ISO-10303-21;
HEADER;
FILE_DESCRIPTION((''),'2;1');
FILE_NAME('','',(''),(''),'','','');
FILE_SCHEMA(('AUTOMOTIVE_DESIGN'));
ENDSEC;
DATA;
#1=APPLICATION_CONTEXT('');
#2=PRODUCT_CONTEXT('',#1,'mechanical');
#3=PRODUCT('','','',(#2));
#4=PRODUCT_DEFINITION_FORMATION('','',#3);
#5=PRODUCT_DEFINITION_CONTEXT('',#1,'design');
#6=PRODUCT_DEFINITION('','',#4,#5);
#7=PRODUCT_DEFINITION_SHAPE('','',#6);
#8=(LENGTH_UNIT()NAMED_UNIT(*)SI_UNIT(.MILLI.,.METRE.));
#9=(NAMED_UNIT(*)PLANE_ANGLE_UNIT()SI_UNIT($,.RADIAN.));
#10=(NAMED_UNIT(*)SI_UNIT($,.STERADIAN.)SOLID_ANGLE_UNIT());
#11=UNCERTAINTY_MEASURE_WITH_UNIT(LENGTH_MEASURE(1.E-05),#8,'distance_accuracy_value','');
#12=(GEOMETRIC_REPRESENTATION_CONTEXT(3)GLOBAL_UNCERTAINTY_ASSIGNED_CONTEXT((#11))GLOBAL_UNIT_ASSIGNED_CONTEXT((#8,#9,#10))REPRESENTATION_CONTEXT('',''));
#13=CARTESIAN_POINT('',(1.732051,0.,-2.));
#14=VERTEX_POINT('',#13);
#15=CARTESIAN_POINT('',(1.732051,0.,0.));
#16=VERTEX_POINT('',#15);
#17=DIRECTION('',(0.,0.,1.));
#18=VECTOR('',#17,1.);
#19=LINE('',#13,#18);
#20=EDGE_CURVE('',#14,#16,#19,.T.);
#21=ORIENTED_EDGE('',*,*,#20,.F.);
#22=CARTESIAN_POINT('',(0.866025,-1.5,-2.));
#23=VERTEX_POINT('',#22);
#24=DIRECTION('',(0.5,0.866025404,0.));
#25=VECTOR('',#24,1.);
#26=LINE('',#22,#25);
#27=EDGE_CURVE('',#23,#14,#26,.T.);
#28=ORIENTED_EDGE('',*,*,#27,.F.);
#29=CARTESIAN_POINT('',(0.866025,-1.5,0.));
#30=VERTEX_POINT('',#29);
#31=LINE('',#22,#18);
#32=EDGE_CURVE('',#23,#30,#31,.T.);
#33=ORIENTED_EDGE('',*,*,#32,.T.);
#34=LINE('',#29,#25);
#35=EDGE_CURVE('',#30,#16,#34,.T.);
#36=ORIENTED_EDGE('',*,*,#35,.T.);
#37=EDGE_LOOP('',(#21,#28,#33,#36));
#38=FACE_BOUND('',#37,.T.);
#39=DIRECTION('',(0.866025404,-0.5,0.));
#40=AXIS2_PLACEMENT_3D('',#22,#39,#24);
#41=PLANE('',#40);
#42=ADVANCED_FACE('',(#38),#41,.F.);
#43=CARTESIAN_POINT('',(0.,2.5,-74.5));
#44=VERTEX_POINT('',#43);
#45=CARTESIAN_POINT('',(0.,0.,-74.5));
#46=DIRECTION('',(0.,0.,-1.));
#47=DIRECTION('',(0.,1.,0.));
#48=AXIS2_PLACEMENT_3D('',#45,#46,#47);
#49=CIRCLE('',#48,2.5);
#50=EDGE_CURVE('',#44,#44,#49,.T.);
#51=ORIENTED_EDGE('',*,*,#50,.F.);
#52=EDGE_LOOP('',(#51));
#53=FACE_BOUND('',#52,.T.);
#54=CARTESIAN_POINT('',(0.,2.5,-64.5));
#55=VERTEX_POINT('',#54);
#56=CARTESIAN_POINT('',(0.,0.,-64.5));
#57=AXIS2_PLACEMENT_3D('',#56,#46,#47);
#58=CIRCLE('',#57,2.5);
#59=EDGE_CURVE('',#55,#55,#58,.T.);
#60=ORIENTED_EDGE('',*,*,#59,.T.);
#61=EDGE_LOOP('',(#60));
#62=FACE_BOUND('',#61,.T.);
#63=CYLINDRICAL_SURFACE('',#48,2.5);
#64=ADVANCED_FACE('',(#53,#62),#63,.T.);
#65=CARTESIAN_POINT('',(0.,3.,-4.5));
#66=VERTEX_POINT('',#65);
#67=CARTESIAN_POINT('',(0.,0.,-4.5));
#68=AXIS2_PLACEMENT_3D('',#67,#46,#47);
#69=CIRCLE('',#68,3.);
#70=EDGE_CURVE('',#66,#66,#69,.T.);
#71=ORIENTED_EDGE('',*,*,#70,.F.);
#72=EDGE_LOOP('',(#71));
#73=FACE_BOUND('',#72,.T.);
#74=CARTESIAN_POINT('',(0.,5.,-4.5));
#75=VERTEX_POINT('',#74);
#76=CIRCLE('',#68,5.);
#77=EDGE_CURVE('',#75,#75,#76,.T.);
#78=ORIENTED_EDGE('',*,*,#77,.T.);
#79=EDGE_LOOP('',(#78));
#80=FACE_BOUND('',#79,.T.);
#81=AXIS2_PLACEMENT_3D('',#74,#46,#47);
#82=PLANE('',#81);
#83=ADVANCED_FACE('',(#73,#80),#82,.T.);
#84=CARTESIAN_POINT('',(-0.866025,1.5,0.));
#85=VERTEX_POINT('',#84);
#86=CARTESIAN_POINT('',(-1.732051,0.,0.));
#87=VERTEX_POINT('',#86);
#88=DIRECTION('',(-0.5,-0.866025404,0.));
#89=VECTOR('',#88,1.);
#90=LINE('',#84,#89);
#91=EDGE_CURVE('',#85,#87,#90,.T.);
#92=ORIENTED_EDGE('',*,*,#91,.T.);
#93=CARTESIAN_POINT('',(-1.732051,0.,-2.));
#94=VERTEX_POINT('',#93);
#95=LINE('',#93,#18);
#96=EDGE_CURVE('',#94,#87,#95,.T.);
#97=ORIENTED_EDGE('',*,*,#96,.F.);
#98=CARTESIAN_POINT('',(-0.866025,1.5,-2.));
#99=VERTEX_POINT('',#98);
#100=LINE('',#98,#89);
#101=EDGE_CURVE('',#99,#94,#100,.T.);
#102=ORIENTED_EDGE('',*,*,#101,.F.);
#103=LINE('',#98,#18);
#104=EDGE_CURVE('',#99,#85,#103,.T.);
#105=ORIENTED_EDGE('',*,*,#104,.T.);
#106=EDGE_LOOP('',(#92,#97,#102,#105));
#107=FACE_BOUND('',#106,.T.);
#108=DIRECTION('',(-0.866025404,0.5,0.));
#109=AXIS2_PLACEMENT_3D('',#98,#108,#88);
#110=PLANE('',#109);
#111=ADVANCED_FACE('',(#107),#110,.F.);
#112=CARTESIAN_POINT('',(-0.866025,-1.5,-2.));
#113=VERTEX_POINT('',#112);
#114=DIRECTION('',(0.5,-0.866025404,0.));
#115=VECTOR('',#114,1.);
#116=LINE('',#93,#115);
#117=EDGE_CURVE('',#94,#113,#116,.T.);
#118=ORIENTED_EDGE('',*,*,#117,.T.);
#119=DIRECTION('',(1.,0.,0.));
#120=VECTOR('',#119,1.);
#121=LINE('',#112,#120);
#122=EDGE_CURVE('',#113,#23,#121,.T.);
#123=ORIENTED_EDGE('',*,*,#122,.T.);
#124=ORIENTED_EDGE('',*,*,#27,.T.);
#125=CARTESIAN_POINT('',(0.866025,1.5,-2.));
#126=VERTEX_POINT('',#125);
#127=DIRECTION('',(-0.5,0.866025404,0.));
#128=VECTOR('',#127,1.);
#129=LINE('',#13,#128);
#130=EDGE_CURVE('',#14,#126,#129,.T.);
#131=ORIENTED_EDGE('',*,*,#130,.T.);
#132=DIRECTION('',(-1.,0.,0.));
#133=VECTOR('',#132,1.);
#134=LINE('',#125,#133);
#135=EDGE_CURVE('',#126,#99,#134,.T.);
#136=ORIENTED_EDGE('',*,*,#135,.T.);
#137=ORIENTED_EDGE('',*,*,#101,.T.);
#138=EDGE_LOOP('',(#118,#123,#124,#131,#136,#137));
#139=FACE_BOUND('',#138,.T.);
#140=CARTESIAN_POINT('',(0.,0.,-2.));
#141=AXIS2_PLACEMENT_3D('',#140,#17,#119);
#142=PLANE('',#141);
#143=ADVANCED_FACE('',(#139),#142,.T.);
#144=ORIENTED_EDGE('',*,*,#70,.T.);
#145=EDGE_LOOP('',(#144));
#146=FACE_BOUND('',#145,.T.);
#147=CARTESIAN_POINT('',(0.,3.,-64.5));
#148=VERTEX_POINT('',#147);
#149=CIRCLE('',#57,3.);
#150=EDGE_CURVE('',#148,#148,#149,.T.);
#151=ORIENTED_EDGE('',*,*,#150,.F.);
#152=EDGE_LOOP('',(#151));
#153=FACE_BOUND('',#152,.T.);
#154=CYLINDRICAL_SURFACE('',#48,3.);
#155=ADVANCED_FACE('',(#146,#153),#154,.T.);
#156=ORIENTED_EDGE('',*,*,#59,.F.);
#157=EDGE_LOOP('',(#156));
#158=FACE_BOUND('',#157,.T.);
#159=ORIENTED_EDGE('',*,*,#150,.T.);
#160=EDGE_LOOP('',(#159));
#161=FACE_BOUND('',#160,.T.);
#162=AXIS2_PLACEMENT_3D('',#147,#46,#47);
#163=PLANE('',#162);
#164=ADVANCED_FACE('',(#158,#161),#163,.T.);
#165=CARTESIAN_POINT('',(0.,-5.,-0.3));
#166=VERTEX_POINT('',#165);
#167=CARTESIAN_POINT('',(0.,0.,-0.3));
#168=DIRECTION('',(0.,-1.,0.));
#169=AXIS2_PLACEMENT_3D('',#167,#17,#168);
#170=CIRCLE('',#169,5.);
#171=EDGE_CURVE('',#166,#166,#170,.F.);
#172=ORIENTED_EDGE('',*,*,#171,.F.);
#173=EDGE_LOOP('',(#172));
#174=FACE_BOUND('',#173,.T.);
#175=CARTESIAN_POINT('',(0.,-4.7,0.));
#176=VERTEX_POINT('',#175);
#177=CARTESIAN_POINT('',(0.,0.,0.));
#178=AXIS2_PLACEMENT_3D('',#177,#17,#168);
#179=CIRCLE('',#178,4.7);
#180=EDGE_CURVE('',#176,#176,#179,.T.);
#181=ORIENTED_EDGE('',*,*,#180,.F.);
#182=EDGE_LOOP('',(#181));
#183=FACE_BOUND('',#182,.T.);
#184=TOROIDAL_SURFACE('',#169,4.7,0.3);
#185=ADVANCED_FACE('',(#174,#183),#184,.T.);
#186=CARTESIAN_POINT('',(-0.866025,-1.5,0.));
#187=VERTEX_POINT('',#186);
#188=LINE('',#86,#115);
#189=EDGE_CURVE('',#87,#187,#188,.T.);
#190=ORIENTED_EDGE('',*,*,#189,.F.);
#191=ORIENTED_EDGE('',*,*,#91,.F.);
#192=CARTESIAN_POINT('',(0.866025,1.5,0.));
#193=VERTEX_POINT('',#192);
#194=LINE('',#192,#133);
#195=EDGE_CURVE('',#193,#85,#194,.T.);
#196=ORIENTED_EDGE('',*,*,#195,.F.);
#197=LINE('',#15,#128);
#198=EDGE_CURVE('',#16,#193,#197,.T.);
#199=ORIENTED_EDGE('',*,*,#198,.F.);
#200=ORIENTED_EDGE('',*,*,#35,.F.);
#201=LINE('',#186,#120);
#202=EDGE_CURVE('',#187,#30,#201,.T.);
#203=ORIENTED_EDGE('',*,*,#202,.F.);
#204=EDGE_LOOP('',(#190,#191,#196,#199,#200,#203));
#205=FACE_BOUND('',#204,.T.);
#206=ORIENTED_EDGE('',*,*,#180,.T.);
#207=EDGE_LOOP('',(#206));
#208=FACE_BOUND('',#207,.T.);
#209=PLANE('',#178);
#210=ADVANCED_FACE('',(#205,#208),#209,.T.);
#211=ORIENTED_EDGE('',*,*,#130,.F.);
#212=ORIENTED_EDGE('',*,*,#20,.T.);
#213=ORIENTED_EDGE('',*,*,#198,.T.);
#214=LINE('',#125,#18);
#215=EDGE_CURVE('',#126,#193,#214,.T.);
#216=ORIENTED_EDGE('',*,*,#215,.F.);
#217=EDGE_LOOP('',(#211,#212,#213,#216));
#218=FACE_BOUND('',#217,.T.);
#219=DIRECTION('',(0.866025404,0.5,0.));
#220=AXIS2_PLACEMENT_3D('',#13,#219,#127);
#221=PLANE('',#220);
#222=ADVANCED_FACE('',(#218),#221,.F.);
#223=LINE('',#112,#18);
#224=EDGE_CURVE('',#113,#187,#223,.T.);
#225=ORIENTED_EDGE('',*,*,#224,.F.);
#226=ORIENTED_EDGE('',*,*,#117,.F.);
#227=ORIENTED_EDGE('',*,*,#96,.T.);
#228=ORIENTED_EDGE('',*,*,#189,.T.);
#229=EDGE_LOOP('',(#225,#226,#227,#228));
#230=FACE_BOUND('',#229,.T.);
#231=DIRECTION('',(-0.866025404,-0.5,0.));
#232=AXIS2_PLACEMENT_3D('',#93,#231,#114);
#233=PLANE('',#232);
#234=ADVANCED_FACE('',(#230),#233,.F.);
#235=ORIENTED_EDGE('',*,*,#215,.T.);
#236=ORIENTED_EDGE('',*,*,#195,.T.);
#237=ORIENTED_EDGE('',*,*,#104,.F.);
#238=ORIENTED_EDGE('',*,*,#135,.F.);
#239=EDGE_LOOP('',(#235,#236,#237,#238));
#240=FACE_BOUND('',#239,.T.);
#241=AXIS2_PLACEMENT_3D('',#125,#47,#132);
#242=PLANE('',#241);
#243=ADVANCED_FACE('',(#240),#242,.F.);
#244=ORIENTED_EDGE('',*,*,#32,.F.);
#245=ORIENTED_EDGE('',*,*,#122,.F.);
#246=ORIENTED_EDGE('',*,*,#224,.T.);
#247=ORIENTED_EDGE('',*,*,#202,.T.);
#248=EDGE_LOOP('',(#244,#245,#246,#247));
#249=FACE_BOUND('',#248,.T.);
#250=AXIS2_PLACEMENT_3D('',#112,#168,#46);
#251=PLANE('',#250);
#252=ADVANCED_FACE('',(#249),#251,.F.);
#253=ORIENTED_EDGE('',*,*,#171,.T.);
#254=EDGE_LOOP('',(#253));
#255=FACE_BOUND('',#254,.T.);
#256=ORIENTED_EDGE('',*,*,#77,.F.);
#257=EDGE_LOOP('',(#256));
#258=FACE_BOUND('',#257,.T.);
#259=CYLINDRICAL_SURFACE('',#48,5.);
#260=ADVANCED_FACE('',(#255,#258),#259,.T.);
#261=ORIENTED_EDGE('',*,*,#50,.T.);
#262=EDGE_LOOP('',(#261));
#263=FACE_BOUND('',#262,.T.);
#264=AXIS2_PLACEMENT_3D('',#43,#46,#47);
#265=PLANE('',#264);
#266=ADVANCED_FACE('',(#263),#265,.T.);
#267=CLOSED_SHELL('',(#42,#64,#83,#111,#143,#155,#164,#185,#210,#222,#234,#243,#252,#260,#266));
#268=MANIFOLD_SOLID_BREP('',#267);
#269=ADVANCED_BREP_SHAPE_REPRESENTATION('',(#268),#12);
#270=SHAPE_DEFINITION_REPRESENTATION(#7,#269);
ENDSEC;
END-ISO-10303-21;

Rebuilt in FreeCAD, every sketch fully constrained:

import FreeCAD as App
import Part
import Sketcher
Q = App.Units.Quantity


def edges_at(feature, points):
    """Names of the edges that pass closest to the given points."""
    edges = feature.Shape.Edges
    near = lambda p: min(range(len(edges)), key=lambda i: edges[i].distToShape(Part.Vertex(*p))[0])
    return sorted({f"Edge{near(p) + 1}" for p in points})

doc = App.newDocument("Part")
body = doc.addObject("PartDesign::Body", "Body")

# Sketch on YZ plane
sketch1 = doc.addObject("Sketcher::SketchObject", "Sketch")
body.addObject(sketch1)
sketch1.AttachmentSupport = (doc.YZ_Plane, [""])
sketch1.MapMode = "FlatFace"
sketch1.addGeometry([
    Part.LineSegment(App.Vector(5, 0, 0), App.Vector(0, 0, 0)),  # 0
    Part.LineSegment(App.Vector(0, 0, 0), App.Vector(0, -74.5, 0)),  # 1
    Part.LineSegment(App.Vector(0, -74.5, 0), App.Vector(2.5, -74.5, 0)),  # 2
    Part.LineSegment(App.Vector(2.5, -74.5, 0), App.Vector(2.5, -64.5, 0)),  # 3
    Part.LineSegment(App.Vector(2.5, -64.5, 0), App.Vector(3, -64.5, 0)),  # 4
    Part.LineSegment(App.Vector(3, -64.5, 0), App.Vector(3, -4.5, 0)),  # 5
    Part.LineSegment(App.Vector(3, -4.5, 0), App.Vector(5, -4.5, 0)),  # 6
    Part.LineSegment(App.Vector(5, -4.5, 0), App.Vector(5, 0, 0)),  # 7
], False)
sketch1.addConstraint([
    Sketcher.Constraint("Coincident", 0, 2, 1, 1),
    Sketcher.Constraint("Coincident", 1, 2, 2, 1),
    Sketcher.Constraint("Coincident", 2, 2, 3, 1),
    Sketcher.Constraint("Coincident", 3, 2, 4, 1),
    Sketcher.Constraint("Coincident", 4, 2, 5, 1),
    Sketcher.Constraint("Coincident", 5, 2, 6, 1),
    Sketcher.Constraint("Coincident", 6, 2, 7, 1),
    Sketcher.Constraint("Coincident", 7, 2, 0, 1),
    Sketcher.Constraint("Horizontal", 0),
    Sketcher.Constraint("Vertical", 1),
    Sketcher.Constraint("Horizontal", 2),
    Sketcher.Constraint("Vertical", 3),
    Sketcher.Constraint("Horizontal", 4),
    Sketcher.Constraint("Vertical", 5),
    Sketcher.Constraint("Horizontal", 6),
    Sketcher.Constraint("Vertical", 7),
    Sketcher.Constraint("Coincident", 0, 2, -1, 1),
    Sketcher.Constraint("DistanceX", 0, 2, 0, 1, Q("5 mm")),
    Sketcher.Constraint("DistanceX", 6, 1, 6, 2, Q("2 mm")),
    Sketcher.Constraint("DistanceY", 3, 1, 3, 2, Q("10 mm")),
    Sketcher.Constraint("DistanceY", 5, 1, 5, 2, Q("60 mm")),
    Sketcher.Constraint("DistanceX", 2, 1, 2, 2, Q("2.5 mm")),
    Sketcher.Constraint("DistanceY", 1, 2, 1, 1, Q("74.5 mm")),
])
revolution = doc.addObject("PartDesign::Revolution", "Revolution")
body.addObject(revolution)
revolution.Profile = sketch1
revolution.ReferenceAxis = (sketch1, ["V_Axis"])
revolution.Angle = 360

# Sketch on XY plane
sketch2 = doc.addObject("Sketcher::SketchObject", "Sketch001")
body.addObject(sketch2)
sketch2.AttachmentSupport = (doc.XY_Plane, [""])
sketch2.MapMode = "FlatFace"
sketch2.addGeometry([
    Part.LineSegment(App.Vector(0.866025, 1.5, 0), App.Vector(-0.866025, 1.5, 0)),  # 0
    Part.LineSegment(App.Vector(-0.866025, 1.5, 0), App.Vector(-1.732051, 0, 0)),  # 1
    Part.LineSegment(App.Vector(-1.732051, 0, 0), App.Vector(-0.866025, -1.5, 0)),  # 2
    Part.LineSegment(App.Vector(-0.866025, -1.5, 0), App.Vector(0.866025, -1.5, 0)),  # 3
    Part.LineSegment(App.Vector(0.866025, -1.5, 0), App.Vector(1.732051, 0, 0)),  # 4
    Part.LineSegment(App.Vector(1.732051, 0, 0), App.Vector(0.866025, 1.5, 0)),  # 5
], False)
sketch2.addConstraint([
    Sketcher.Constraint("Coincident", 0, 2, 1, 1),
    Sketcher.Constraint("Coincident", 1, 2, 2, 1),
    Sketcher.Constraint("Coincident", 2, 2, 3, 1),
    Sketcher.Constraint("Coincident", 3, 2, 4, 1),
    Sketcher.Constraint("Coincident", 4, 2, 5, 1),
    Sketcher.Constraint("Coincident", 5, 2, 0, 1),
    Sketcher.Constraint("Horizontal", 0),
    Sketcher.Constraint("Horizontal", 3),
    Sketcher.Constraint("Symmetric", 0, 2, 3, 2, -1, 1),
    Sketcher.Constraint("Symmetric", 1, 2, 4, 2, -1, 1),
    Sketcher.Constraint("PointOnObject", 1, 2, -1),
    Sketcher.Constraint("Parallel", 2, 5),
    Sketcher.Constraint("Vertical", 0, 2, 2, 2),
    Sketcher.Constraint("Angle", 1, Q("-120 deg")),
    Sketcher.Constraint("DistanceY", 2, 2, 0, 2, Q("3 mm")),
    Sketcher.Constraint("DistanceX", 0, 2, 0, 1, Q("1.732051 mm")),
])
pocket1 = doc.addObject("PartDesign::Pocket", "Pocket")
body.addObject(pocket1)
pocket1.Profile = sketch2
pocket1.Length = 2
doc.recompute()

fillet = doc.addObject("PartDesign::Fillet", "Fillet")
body.addObject(fillet)
fillet.Base = (pocket1, edges_at(pocket1, [(0, -5, 0)]))
fillet.Radius = 0.3

doc.recompute()
